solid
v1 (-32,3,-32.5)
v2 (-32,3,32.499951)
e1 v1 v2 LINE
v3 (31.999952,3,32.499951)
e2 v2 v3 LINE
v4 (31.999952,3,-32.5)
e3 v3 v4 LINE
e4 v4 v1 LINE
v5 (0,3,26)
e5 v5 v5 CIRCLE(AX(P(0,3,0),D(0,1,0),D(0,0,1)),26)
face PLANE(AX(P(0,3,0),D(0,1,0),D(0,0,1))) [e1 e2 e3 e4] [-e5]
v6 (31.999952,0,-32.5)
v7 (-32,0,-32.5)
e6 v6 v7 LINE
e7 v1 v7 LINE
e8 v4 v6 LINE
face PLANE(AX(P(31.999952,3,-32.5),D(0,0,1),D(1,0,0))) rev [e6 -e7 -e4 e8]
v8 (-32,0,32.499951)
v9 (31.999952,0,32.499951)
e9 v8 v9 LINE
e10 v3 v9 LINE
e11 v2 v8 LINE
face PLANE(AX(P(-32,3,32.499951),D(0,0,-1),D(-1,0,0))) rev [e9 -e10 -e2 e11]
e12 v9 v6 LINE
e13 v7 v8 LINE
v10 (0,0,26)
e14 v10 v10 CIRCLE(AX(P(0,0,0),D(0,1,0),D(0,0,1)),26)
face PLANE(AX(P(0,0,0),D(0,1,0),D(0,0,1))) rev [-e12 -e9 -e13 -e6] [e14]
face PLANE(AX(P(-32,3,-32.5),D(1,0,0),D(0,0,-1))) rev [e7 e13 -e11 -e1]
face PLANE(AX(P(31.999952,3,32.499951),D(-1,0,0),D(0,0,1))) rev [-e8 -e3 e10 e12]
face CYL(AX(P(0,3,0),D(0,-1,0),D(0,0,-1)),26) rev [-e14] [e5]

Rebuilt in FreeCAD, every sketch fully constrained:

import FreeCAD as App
import Part
import Sketcher
Q = App.Units.Quantity

doc = App.newDocument("Part")
params = doc.addObject("Spreadsheet::Sheet", "Params")
for row, (alias, value) in enumerate([
    ("sketch1_diameter", "52 mm"),
    ("pad1_length", "3 mm"),
], start=1):
    params.set(f"A{row}", alias)
    params.set(f"B{row}", "=" + value)
    params.setAlias(f"B{row}", alias)

body = doc.addObject("PartDesign::Body", "Body")

# Sketch on XZ plane
sketch1 = body.newObject("Sketcher::SketchObject", "Sketch")
sketch1.AttachmentSupport = (doc.getObject("XZ_Plane"), [""])
sketch1.MapMode = "FlatFace"
sketch1.addGeometry([
    Part.LineSegment(App.Vector(-32, -32, 0), App.Vector(-32, 32, 0)),  # 0
    Part.LineSegment(App.Vector(-32, 32, 0), App.Vector(32, 32, 0)),  # 1
    Part.LineSegment(App.Vector(32, 32, 0), App.Vector(32, -32, 0)),  # 2
    Part.LineSegment(App.Vector(32, -32, 0), App.Vector(-32, -32, 0)),  # 3
    Part.Circle(App.Vector(0, 0, 0), App.Vector(0, 0, 1), 26),  # 4
], False)
sketch1.addConstraint([
    Sketcher.Constraint("Coincident", 0, 2, 1, 1),
    Sketcher.Constraint("Coincident", 1, 2, 2, 1),
    Sketcher.Constraint("Coincident", 2, 2, 3, 1),
    Sketcher.Constraint("Coincident", 3, 2, 0, 1),
    Sketcher.Constraint("Vertical", 0),
    Sketcher.Constraint("Horizontal", 1),
    Sketcher.Constraint("Vertical", 2),
    Sketcher.Constraint("Horizontal", 3),
    Sketcher.Constraint("Coincident", 4, 3, -1, 1),
    Sketcher.Constraint("Diameter", 4, Q("52 mm")),
    Sketcher.Constraint("DistanceX", 0, 2, -1, 1, Q("32 mm")),
    Sketcher.Constraint("DistanceY", 2, 2, -1, 1, Q("32.5 mm")),
    Sketcher.Constraint("DistanceX", 1, 1, 1, 2, Q("63.999952 mm")),
    Sketcher.Constraint("DistanceY", 0, 1, 0, 2, Q("64.999951 mm")),
])
sketch1.setExpression("Constraints[9]", "Params.sketch1_diameter")
pad1 = body.newObject("PartDesign::Pad", "Pad")
pad1.Profile = sketch1
pad1.setExpression("Length", "Params.pad1_length")
pad1.Reversed = True

doc.recompute()
